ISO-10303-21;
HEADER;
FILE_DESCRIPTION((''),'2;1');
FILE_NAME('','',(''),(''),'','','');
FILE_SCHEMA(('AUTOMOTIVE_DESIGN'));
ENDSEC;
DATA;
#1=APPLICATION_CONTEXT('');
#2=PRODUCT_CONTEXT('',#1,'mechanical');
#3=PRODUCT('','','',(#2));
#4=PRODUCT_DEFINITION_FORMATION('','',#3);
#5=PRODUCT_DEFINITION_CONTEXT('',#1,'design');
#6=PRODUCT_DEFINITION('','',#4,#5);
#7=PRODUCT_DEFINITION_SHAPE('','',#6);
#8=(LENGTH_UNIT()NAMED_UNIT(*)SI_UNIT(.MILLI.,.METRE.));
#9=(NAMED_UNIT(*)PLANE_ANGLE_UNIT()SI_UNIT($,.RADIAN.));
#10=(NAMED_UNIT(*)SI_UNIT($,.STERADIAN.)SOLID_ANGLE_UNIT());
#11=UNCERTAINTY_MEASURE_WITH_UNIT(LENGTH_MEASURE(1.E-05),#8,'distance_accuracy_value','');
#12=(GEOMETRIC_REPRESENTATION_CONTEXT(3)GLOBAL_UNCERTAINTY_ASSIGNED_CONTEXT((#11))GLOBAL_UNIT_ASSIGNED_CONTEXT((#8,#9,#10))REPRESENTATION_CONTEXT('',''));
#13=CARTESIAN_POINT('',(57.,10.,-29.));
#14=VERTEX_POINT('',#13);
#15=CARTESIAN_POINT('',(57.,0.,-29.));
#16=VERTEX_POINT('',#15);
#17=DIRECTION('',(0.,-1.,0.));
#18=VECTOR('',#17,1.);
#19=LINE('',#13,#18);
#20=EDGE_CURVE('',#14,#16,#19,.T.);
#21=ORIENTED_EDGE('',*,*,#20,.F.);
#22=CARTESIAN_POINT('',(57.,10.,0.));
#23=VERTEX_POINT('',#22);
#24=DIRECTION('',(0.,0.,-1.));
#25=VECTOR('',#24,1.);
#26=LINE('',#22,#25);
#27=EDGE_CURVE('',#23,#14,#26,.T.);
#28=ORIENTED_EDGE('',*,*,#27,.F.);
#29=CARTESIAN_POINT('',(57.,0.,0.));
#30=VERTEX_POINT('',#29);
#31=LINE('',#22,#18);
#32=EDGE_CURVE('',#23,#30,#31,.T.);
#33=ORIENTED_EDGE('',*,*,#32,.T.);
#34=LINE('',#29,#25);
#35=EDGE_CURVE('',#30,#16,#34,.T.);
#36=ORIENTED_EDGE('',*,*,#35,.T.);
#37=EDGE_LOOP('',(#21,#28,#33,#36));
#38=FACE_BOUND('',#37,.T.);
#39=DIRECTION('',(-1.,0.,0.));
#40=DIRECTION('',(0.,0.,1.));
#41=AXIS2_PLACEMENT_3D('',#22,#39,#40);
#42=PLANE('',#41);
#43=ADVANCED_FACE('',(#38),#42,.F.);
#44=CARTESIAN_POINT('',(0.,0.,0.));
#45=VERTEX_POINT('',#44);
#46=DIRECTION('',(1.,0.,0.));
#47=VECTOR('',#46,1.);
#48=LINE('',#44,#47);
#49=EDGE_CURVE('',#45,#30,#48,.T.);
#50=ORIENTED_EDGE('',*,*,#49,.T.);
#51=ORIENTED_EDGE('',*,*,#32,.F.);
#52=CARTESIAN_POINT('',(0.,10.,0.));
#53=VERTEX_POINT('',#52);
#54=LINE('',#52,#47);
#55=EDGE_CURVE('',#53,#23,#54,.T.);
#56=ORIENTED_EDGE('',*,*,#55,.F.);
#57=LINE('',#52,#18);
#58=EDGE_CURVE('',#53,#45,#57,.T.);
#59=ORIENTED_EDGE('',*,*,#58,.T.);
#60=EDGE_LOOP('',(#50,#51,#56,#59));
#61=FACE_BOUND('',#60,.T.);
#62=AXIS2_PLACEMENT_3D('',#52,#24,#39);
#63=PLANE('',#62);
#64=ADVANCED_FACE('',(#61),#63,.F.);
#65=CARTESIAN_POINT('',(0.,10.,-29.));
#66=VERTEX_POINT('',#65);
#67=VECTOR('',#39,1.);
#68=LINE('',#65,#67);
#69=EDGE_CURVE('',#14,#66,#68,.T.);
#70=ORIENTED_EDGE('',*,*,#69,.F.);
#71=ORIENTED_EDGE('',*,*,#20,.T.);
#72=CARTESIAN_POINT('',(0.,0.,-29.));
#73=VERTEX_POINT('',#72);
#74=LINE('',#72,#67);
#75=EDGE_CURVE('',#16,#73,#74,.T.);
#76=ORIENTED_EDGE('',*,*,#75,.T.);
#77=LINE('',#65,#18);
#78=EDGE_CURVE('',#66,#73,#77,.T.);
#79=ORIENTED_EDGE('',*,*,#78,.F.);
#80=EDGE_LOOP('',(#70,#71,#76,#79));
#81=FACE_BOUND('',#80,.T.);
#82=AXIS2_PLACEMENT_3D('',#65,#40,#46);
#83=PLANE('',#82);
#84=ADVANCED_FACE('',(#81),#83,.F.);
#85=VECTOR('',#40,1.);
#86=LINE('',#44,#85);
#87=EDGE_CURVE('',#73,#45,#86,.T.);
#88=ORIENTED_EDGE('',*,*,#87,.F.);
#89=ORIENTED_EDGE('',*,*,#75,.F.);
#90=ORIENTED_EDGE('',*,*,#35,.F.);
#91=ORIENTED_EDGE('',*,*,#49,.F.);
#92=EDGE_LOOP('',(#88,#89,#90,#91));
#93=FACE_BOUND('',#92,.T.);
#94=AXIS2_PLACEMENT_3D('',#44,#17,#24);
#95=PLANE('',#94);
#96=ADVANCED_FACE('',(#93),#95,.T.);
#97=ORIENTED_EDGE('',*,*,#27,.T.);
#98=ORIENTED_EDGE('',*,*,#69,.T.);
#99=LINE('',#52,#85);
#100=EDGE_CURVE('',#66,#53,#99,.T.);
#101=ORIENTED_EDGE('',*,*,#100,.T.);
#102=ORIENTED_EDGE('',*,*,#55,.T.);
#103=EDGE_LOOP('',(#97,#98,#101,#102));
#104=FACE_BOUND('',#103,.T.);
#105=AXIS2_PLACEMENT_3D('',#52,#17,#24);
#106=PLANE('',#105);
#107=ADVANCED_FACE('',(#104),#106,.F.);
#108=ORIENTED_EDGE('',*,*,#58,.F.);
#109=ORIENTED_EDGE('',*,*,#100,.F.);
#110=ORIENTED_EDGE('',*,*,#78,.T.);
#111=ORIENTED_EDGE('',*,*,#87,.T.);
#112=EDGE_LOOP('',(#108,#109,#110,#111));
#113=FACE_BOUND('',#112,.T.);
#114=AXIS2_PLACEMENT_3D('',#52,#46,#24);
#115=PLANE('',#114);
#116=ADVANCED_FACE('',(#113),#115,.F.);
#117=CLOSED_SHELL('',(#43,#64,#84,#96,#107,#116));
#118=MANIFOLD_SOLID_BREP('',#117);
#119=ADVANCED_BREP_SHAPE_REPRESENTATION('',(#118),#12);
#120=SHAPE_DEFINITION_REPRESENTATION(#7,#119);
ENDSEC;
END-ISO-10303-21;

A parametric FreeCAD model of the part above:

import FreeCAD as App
import Part
import Sketcher
from FreeCAD import Vector


def add_polygon(sketch, points):
    """Adds a closed chain of lines whose ends are joined by coincident constraints."""
    first, n = sketch.GeometryCount, len(points)
    for a, b in zip(points, points[1:] + points[:1]):
        sketch.addGeometry(Part.LineSegment(App.Vector(*a, 0), App.Vector(*b, 0)), False)
    for i in range(n):
        sketch.addConstraint(Sketcher.Constraint("Coincident", first + i, 2, first + (i + 1) % n, 1))

doc = App.newDocument("Part")
body = doc.addObject("PartDesign::Body", "Body")

sketch1 = body.newObject("Sketcher::SketchObject", "Sketch")
sketch1.AttachmentSupport = (doc.getObject("XZ_Plane"), [""])
sketch1.MapMode = "FlatFace"
add_polygon(sketch1, [(0, -29), (0, 0), (57, 0), (57, -29)])
sketch1.addConstraint(Sketcher.Constraint("Vertical", 0))
sketch1.addConstraint(Sketcher.Constraint("Horizontal", 1))
sketch1.addConstraint(Sketcher.Constraint("Vertical", 2))
sketch1.addConstraint(Sketcher.Constraint("Horizontal", 3))
sketch1.addConstraint(Sketcher.Constraint("Coincident", 0, 2, -1, 1))
sketch1.addConstraint(Sketcher.Constraint("DistanceX", 1, 1, 1, 2, 57.0))
sketch1.addConstraint(Sketcher.Constraint("DistanceY", 0, 1, 0, 2, 29.0))
pad1 = body.newObject("PartDesign::Pad", "Pad")
pad1.Profile = sketch1
pad1.Length = 10
pad1.Reversed = True

doc.recompute()
